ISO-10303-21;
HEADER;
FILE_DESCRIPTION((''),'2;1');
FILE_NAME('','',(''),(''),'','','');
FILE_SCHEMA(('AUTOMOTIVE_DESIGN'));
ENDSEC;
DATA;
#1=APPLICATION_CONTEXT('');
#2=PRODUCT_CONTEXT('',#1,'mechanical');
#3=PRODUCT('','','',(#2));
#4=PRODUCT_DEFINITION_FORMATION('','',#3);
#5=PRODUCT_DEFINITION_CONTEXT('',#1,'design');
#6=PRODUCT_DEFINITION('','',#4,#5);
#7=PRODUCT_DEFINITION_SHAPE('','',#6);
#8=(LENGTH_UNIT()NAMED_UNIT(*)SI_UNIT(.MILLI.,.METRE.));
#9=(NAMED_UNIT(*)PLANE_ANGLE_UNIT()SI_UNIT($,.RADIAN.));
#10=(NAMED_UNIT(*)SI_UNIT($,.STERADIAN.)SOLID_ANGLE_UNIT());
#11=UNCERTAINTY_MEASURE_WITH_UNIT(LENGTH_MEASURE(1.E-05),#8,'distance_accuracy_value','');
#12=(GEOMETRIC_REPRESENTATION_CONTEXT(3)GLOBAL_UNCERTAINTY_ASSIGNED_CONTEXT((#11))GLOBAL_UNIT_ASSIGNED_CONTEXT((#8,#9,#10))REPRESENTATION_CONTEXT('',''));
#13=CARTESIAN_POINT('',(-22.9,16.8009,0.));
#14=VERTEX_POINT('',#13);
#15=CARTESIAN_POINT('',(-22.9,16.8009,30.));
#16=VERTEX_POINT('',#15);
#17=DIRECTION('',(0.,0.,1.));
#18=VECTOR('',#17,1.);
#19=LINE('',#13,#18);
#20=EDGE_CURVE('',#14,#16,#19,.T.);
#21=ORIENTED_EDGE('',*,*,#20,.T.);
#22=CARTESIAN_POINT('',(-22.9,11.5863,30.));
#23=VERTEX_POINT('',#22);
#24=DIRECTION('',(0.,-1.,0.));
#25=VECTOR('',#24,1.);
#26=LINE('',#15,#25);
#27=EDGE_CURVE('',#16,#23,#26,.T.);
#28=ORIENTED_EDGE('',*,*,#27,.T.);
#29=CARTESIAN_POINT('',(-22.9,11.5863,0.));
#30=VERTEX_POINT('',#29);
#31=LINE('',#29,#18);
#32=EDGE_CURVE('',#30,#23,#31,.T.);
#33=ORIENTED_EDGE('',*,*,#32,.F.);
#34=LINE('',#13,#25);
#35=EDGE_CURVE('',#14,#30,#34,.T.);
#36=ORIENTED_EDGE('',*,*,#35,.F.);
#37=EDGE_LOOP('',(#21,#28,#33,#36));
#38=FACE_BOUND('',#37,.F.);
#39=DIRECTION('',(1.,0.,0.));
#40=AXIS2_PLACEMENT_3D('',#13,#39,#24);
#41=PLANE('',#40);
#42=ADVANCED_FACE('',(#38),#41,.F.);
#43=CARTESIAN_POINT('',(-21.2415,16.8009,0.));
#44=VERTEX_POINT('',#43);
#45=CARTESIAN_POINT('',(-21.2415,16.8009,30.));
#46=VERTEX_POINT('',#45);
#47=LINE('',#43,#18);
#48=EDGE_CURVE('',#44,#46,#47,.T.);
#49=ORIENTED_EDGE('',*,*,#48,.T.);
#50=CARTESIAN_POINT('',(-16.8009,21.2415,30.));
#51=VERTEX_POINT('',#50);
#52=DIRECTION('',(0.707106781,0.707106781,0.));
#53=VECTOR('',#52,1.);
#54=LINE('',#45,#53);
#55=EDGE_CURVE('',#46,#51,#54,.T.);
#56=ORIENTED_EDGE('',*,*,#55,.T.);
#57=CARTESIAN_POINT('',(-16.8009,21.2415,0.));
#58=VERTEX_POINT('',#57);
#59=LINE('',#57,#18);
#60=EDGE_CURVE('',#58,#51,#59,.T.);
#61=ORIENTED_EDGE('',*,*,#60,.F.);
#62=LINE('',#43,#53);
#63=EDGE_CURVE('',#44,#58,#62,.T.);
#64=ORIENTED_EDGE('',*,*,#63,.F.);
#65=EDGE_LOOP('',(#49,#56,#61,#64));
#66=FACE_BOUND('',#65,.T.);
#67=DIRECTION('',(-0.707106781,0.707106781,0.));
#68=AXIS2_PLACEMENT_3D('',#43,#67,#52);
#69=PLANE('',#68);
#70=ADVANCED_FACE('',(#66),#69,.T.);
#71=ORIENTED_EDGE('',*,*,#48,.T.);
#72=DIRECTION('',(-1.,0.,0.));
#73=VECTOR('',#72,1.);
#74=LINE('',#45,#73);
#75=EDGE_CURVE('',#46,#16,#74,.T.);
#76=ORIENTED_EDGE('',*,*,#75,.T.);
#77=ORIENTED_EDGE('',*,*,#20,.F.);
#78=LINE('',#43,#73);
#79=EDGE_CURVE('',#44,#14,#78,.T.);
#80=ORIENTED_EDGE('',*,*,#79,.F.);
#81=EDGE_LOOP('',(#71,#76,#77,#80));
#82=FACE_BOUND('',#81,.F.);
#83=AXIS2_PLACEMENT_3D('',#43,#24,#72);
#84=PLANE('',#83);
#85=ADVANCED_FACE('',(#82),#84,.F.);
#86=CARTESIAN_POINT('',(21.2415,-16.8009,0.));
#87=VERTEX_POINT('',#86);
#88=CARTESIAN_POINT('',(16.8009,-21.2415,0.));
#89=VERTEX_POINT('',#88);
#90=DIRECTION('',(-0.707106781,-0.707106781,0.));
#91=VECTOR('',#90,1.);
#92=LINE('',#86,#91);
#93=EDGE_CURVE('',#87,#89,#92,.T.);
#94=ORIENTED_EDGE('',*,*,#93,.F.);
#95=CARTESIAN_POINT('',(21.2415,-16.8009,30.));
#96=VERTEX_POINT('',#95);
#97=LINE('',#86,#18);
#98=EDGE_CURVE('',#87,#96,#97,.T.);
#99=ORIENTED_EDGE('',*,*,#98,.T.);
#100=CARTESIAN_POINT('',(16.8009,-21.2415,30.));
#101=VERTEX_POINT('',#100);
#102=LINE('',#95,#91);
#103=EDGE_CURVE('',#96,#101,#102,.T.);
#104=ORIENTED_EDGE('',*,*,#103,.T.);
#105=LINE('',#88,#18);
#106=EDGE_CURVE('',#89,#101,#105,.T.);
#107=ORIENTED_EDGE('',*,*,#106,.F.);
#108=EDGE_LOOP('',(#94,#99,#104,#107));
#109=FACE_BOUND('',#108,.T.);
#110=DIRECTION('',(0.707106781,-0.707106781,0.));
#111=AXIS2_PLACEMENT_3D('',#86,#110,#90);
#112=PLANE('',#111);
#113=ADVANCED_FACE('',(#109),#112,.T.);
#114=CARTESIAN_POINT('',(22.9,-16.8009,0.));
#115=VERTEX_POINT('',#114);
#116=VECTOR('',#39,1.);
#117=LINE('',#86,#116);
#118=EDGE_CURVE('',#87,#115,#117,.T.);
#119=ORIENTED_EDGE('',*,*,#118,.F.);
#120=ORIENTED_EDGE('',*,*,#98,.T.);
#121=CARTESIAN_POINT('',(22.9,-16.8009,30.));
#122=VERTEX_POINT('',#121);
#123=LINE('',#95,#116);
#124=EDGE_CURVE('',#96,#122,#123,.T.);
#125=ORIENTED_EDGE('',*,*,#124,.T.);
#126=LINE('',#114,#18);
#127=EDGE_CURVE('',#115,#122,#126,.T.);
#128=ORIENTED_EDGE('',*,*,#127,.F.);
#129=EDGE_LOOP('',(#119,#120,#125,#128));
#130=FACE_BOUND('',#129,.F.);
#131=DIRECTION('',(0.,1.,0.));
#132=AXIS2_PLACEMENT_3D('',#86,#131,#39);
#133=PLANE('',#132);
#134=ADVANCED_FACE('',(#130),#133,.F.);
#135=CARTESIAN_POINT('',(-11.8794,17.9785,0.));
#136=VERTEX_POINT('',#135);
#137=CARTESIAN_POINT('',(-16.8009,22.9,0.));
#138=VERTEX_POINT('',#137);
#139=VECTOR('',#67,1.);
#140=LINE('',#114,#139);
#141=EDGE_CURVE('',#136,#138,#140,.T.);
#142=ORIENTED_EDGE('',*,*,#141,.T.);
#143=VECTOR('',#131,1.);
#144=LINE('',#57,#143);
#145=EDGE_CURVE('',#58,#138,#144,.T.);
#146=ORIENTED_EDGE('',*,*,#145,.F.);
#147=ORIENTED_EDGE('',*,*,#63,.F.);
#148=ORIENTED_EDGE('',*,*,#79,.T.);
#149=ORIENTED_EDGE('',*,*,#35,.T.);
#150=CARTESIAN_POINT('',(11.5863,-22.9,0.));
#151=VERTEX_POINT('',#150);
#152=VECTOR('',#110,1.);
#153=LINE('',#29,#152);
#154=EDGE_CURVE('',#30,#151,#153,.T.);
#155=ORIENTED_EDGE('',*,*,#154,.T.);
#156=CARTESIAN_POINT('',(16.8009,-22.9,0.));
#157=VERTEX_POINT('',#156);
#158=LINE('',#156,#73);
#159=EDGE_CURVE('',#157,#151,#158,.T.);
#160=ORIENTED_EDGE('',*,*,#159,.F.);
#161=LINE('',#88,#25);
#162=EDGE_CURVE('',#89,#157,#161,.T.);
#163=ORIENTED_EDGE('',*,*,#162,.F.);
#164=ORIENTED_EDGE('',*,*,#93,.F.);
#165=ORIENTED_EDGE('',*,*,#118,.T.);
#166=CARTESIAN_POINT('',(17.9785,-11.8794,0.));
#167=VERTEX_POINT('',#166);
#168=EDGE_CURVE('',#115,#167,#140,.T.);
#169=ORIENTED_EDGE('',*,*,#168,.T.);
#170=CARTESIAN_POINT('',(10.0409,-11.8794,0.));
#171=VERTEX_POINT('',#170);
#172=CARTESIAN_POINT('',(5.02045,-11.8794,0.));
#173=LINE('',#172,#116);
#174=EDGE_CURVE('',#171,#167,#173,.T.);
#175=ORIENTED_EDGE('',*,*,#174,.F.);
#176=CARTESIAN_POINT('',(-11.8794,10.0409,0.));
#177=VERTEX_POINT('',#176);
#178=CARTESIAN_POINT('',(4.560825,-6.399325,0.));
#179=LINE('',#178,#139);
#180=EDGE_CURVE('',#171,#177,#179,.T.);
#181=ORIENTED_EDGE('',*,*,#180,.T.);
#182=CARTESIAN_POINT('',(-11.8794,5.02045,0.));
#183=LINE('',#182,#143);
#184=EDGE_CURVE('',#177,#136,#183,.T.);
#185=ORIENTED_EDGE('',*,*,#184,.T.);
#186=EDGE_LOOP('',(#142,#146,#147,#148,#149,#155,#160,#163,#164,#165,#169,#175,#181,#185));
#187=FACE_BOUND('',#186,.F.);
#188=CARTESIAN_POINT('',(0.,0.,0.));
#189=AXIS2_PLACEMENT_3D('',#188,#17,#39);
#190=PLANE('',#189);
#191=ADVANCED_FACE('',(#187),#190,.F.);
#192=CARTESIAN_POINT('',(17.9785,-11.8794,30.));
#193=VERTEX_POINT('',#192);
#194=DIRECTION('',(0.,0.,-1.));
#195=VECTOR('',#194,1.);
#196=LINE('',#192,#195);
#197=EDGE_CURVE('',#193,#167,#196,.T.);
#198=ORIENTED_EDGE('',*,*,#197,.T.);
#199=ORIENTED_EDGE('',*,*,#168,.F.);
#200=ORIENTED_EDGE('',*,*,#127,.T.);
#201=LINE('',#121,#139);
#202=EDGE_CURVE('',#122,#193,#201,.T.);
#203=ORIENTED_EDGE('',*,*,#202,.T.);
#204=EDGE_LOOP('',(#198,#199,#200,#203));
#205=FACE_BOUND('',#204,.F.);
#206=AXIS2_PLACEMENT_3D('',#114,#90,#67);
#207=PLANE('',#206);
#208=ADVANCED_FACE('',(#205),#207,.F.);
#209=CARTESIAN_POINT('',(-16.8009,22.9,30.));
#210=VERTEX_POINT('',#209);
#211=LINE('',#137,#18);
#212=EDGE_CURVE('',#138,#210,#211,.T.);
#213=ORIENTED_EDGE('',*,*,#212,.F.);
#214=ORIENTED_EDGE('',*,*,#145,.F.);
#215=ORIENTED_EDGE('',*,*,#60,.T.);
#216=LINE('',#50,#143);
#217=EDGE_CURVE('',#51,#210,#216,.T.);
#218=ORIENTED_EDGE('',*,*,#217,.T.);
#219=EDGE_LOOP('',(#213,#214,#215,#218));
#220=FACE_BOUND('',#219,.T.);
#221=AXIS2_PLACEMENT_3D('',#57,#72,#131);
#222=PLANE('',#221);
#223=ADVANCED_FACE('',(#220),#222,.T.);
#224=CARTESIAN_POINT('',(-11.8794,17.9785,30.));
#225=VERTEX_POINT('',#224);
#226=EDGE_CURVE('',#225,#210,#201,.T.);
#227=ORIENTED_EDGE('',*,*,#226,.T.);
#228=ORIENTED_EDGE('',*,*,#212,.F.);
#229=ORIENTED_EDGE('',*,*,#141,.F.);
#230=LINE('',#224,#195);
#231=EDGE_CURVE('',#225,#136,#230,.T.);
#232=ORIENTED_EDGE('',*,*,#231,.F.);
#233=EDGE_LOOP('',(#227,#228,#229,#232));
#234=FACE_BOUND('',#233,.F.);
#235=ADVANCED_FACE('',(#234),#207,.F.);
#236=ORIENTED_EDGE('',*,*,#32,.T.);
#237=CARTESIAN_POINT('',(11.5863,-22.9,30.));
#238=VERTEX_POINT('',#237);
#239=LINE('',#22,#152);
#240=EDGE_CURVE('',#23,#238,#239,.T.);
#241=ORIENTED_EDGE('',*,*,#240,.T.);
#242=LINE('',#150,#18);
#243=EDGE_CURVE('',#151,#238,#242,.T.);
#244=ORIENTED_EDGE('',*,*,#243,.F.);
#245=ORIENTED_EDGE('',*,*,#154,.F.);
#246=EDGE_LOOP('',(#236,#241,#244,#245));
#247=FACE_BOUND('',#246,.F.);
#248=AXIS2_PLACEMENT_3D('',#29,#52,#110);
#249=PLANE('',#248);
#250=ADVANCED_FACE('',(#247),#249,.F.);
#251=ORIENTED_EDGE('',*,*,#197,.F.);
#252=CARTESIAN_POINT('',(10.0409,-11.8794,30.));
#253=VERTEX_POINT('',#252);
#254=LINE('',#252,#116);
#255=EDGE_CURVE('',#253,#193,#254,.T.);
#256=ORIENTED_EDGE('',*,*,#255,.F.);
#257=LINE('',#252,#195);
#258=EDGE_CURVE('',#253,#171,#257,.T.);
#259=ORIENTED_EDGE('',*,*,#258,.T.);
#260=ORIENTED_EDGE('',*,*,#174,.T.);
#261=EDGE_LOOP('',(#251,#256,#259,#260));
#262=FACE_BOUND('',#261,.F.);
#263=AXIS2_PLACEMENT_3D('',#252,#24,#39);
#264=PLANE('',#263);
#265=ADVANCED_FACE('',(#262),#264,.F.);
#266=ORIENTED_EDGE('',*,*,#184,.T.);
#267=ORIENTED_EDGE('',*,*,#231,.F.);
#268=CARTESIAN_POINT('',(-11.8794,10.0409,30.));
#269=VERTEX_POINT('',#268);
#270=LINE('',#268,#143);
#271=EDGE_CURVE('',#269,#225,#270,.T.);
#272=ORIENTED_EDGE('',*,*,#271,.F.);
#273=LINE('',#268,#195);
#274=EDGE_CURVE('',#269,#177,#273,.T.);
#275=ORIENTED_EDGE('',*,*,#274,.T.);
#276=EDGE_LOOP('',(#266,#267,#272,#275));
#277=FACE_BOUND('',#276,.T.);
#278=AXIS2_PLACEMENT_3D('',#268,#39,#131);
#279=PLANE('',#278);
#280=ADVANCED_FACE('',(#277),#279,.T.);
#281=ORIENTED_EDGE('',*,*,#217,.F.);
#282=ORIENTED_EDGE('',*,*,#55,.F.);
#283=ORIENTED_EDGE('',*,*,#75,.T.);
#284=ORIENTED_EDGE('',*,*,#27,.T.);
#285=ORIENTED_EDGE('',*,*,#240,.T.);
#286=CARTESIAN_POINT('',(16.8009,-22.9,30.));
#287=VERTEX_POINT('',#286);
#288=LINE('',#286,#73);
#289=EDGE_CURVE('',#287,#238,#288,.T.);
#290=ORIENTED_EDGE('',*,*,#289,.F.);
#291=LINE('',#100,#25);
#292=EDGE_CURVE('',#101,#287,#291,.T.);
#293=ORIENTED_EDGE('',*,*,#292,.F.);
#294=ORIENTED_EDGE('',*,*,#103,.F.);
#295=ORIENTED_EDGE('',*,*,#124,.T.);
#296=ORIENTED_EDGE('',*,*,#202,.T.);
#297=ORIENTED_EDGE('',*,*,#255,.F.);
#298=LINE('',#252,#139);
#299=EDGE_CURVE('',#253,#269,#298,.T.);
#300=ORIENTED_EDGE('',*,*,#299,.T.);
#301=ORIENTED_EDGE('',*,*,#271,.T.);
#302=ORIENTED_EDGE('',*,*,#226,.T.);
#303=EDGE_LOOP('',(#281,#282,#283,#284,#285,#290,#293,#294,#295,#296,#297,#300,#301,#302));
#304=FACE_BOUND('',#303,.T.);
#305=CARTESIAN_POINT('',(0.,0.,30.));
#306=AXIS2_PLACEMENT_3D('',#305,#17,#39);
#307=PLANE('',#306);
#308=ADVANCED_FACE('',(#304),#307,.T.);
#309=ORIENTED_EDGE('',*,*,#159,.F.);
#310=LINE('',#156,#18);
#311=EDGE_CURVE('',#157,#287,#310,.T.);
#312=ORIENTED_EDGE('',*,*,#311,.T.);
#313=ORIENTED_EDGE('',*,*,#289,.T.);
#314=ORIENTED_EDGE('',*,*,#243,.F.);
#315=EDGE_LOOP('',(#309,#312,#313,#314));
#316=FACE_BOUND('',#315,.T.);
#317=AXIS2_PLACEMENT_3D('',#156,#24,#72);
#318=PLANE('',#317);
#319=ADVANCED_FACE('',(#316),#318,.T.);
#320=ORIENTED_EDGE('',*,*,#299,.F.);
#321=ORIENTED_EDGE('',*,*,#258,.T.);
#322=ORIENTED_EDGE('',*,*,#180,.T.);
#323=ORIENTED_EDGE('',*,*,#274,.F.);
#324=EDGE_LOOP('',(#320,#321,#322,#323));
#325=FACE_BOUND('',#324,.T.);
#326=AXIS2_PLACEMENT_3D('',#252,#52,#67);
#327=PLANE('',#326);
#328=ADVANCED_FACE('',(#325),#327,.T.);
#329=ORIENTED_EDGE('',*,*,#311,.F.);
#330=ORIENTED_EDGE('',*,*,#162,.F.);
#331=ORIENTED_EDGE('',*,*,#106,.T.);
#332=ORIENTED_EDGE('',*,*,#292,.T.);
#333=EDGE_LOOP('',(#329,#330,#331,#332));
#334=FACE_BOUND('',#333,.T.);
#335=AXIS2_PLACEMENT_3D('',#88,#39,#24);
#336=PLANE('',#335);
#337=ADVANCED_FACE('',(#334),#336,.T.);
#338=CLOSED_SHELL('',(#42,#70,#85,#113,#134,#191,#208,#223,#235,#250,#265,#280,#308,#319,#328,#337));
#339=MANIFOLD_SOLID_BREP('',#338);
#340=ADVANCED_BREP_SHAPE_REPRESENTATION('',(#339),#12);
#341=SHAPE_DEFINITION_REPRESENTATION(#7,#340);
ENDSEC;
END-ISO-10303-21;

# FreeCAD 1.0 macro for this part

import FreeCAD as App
import Part
import Sketcher
Q = App.Units.Quantity

doc = App.newDocument("Part")
params = doc.addObject("Spreadsheet::Sheet", "Params")
for row, (alias, value) in enumerate([
    ("sketch1_length", "6.28 mm"),
    ("pad1_length", "30 mm"),
    ("sketch2_length", "31 mm"),
], start=1):
    params.set(f"A{row}", alias)
    params.set(f"B{row}", "=" + value)
    params.setAlias(f"B{row}", alias)

body = doc.addObject("PartDesign::Body", "Body")

sketch1 = body.newObject("Sketcher::SketchObject", "Sketch")
sketch1.AttachmentSupport = (doc.getObject("XY_Plane"), [""])
sketch1.MapMode = "FlatFace"
sketch1.addGeometry(Part.LineSegment(App.Vector(-16.8, 22.9, 0), App.Vector(-16.8, 21.2, 0)), False)
sketch1.addGeometry(Part.LineSegment(App.Vector(-16.8, 21.2, 0), App.Vector(-21.2, 16.8, 0)), False)
sketch1.addGeometry(Part.LineSegment(App.Vector(-21.2, 16.8, 0), App.Vector(-22.9, 16.8, 0)), False)
sketch1.addGeometry(Part.LineSegment(App.Vector(-22.9, 16.8, 0), App.Vector(-22.9, 11.6, 0)), False)
sketch1.addGeometry(Part.LineSegment(App.Vector(-22.9, 11.6, 0), App.Vector(11.6, -22.9, 0)), False)
sketch1.addGeometry(Part.LineSegment(App.Vector(11.6, -22.9, 0), App.Vector(16.8, -22.9, 0)), False)
sketch1.addGeometry(Part.LineSegment(App.Vector(16.8, -22.9, 0), App.Vector(16.8, -21.2, 0)), False)
sketch1.addGeometry(Part.LineSegment(App.Vector(16.8, -21.2, 0), App.Vector(21.2, -16.8, 0)), False)
sketch1.addGeometry(Part.LineSegment(App.Vector(21.2, -16.8, 0), App.Vector(22.9, -16.8, 0)), False)
sketch1.addGeometry(Part.LineSegment(App.Vector(22.9, -16.8, 0), App.Vector(-16.8, 22.9, 0)), False)
sketch1.addConstraint(Sketcher.Constraint("Coincident", 0, 2, 1, 1))
sketch1.addConstraint(Sketcher.Constraint("Coincident", 1, 2, 2, 1))
sketch1.addConstraint(Sketcher.Constraint("Coincident", 2, 2, 3, 1))
sketch1.addConstraint(Sketcher.Constraint("Coincident", 3, 2, 4, 1))
sketch1.addConstraint(Sketcher.Constraint("Coincident", 4, 2, 5, 1))
sketch1.addConstraint(Sketcher.Constraint("Coincident", 5, 2, 6, 1))
sketch1.addConstraint(Sketcher.Constraint("Coincident", 6, 2, 7, 1))
sketch1.addConstraint(Sketcher.Constraint("Coincident", 7, 2, 8, 1))
sketch1.addConstraint(Sketcher.Constraint("Coincident", 8, 2, 9, 1))
sketch1.addConstraint(Sketcher.Constraint("Coincident", 9, 2, 0, 1))
sketch1.addConstraint(Sketcher.Constraint("Vertical", 0))
sketch1.addConstraint(Sketcher.Constraint("Horizontal", 2))
sketch1.addConstraint(Sketcher.Constraint("Vertical", 3))
sketch1.addConstraint(Sketcher.Constraint("Horizontal", 5))
sketch1.addConstraint(Sketcher.Constraint("Vertical", 6))
sketch1.addConstraint(Sketcher.Constraint("Horizontal", 8))
sketch1.addConstraint(Sketcher.Constraint("Symmetric", 0, 2, 6, 2, -1, 1))
sketch1.addConstraint(Sketcher.Constraint("Symmetric", 1, 2, 7, 2, -1, 1))
sketch1.addConstraint(Sketcher.Constraint("Perpendicular", 1, 4))
sketch1.addConstraint(Sketcher.Constraint("Perpendicular", 7, 9))
sketch1.addConstraint(Sketcher.Constraint("Equal", 2, 8))
sketch1.addConstraint(Sketcher.Constraint("Equal", 8, 0))
sketch1.addConstraint(Sketcher.Constraint("Equal", 5, 3))
sketch1.addConstraint(Sketcher.Constraint("Equal", 0, 6))
sketch1.addConstraint(Sketcher.Constraint("Distance", 1, Q("6.28 mm")))
sketch1.addConstraint(Sketcher.Constraint("DistanceX", 2, 2, -1, 1, Q("22.9 mm")))
sketch1.addConstraint(Sketcher.Constraint("Distance", 4, Q("48.771 mm")))
sketch1.addConstraint(Sketcher.Constraint("DistanceX", 2, 2, 2, 1, Q("1.6585 mm")))
sketch1.setExpression("Constraints[24]", "Params.sketch1_length")
pad1 = body.newObject("PartDesign::Pad", "Pad")
pad1.Profile = sketch1
pad1.setExpression("Length", "Params.pad1_length")

sketch2 = body.newObject("Sketcher::SketchObject", "Sketch001")
sketch2.AttachmentSupport = (doc.getObject("XY_Plane"), [""])
sketch2.MapMode = "FlatFace"
sketch2.AttachmentOffset = App.Placement(App.Vector(0, 0, 30), App.Rotation())
sketch2.addGeometry(Part.LineSegment(App.Vector(10, -12, 0), App.Vector(18, -12, 0)), False)
sketch2.addGeometry(Part.LineSegment(App.Vector(18, -12, 0), App.Vector(14, -8, 0)), False)
sketch2.addGeometry(Part.LineSegment(App.Vector(14, -8, 0), App.Vector(18, -4, 0)), False)
sketch2.addGeometry(Part.LineSegment(App.Vector(18, -4, 0), App.Vector(-4, 18, 0)), False)
sketch2.addGeometry(Part.LineSegment(App.Vector(-4, 18, 0), App.Vector(-8, 14, 0)), False)
sketch2.addGeometry(Part.LineSegment(App.Vector(-8, 14, 0), App.Vector(-12, 18, 0)), False)
sketch2.addGeometry(Part.LineSegment(App.Vector(-12, 18, 0), App.Vector(-12, 10, 0)), False)
sketch2.addGeometry(Part.LineSegment(App.Vector(-12, 10, 0), App.Vector(10, -12, 0)), False)
sketch2.addConstraint(Sketcher.Constraint("Coincident", 0, 2, 1, 1))
sketch2.addConstraint(Sketcher.Constraint("Coincident", 1, 2, 2, 1))
sketch2.addConstraint(Sketcher.Constraint("Coincident", 2, 2, 3, 1))
sketch2.addConstraint(Sketcher.Constraint("Coincident", 3, 2, 4, 1))
sketch2.addConstraint(Sketcher.Constraint("Coincident", 4, 2, 5, 1))
sketch2.addConstraint(Sketcher.Constraint("Coincident", 5, 2, 6, 1))
sketch2.addConstraint(Sketcher.Constraint("Coincident", 6, 2, 7, 1))
sketch2.addConstraint(Sketcher.Constraint("Coincident", 7, 2, 0, 1))
sketch2.addConstraint(Sketcher.Constraint("Horizontal", 0))
sketch2.addConstraint(Sketcher.Constraint("Vertical", 6))
sketch2.addConstraint(Sketcher.Constraint("Perpendicular", 1, 2))
sketch2.addConstraint(Sketcher.Constraint("Perpendicular", 2, 3))
sketch2.addConstraint(Sketcher.Constraint("Perpendicular", 3, 4))
sketch2.addConstraint(Sketcher.Constraint("Perpendicular", 4, 5))
sketch2.addConstraint(Sketcher.Constraint("Parallel", 5, 7))
sketch2.addConstraint(Sketcher.Constraint("Horizontal", 3, 2, 5, 2))
sketch2.addConstraint(Sketcher.Constraint("Vertical", 0, 2, 2, 2))
sketch2.addConstraint(Sketcher.Constraint("Equal", 0, 6))
sketch2.addConstraint(Sketcher.Constraint("Equal", 1, 2))
sketch2.addConstraint(Sketcher.Constraint("Equal", 3, 7))
sketch2.addConstraint(Sketcher.Constraint("Distance", 3, Q("31 mm")))
sketch2.addConstraint(Sketcher.Constraint("DistanceX", 0, 1, 0, 2, Q("7.9376 mm")))
sketch2.addConstraint(Sketcher.Constraint("DistanceY", -1, 1, 6, 2, Q("10.041 mm")))
sketch2.addConstraint(Sketcher.Constraint("DistanceX", -1, 1, 7, 2, Q("10.041 mm")))
sketch2.setExpression("Constraints[20]", "Params.sketch2_length")
pocket1 = body.newObject("PartDesign::Pocket", "Pocket")
pocket1.Profile = sketch2
pocket1.Type = "ThroughAll"

doc.recompute()
